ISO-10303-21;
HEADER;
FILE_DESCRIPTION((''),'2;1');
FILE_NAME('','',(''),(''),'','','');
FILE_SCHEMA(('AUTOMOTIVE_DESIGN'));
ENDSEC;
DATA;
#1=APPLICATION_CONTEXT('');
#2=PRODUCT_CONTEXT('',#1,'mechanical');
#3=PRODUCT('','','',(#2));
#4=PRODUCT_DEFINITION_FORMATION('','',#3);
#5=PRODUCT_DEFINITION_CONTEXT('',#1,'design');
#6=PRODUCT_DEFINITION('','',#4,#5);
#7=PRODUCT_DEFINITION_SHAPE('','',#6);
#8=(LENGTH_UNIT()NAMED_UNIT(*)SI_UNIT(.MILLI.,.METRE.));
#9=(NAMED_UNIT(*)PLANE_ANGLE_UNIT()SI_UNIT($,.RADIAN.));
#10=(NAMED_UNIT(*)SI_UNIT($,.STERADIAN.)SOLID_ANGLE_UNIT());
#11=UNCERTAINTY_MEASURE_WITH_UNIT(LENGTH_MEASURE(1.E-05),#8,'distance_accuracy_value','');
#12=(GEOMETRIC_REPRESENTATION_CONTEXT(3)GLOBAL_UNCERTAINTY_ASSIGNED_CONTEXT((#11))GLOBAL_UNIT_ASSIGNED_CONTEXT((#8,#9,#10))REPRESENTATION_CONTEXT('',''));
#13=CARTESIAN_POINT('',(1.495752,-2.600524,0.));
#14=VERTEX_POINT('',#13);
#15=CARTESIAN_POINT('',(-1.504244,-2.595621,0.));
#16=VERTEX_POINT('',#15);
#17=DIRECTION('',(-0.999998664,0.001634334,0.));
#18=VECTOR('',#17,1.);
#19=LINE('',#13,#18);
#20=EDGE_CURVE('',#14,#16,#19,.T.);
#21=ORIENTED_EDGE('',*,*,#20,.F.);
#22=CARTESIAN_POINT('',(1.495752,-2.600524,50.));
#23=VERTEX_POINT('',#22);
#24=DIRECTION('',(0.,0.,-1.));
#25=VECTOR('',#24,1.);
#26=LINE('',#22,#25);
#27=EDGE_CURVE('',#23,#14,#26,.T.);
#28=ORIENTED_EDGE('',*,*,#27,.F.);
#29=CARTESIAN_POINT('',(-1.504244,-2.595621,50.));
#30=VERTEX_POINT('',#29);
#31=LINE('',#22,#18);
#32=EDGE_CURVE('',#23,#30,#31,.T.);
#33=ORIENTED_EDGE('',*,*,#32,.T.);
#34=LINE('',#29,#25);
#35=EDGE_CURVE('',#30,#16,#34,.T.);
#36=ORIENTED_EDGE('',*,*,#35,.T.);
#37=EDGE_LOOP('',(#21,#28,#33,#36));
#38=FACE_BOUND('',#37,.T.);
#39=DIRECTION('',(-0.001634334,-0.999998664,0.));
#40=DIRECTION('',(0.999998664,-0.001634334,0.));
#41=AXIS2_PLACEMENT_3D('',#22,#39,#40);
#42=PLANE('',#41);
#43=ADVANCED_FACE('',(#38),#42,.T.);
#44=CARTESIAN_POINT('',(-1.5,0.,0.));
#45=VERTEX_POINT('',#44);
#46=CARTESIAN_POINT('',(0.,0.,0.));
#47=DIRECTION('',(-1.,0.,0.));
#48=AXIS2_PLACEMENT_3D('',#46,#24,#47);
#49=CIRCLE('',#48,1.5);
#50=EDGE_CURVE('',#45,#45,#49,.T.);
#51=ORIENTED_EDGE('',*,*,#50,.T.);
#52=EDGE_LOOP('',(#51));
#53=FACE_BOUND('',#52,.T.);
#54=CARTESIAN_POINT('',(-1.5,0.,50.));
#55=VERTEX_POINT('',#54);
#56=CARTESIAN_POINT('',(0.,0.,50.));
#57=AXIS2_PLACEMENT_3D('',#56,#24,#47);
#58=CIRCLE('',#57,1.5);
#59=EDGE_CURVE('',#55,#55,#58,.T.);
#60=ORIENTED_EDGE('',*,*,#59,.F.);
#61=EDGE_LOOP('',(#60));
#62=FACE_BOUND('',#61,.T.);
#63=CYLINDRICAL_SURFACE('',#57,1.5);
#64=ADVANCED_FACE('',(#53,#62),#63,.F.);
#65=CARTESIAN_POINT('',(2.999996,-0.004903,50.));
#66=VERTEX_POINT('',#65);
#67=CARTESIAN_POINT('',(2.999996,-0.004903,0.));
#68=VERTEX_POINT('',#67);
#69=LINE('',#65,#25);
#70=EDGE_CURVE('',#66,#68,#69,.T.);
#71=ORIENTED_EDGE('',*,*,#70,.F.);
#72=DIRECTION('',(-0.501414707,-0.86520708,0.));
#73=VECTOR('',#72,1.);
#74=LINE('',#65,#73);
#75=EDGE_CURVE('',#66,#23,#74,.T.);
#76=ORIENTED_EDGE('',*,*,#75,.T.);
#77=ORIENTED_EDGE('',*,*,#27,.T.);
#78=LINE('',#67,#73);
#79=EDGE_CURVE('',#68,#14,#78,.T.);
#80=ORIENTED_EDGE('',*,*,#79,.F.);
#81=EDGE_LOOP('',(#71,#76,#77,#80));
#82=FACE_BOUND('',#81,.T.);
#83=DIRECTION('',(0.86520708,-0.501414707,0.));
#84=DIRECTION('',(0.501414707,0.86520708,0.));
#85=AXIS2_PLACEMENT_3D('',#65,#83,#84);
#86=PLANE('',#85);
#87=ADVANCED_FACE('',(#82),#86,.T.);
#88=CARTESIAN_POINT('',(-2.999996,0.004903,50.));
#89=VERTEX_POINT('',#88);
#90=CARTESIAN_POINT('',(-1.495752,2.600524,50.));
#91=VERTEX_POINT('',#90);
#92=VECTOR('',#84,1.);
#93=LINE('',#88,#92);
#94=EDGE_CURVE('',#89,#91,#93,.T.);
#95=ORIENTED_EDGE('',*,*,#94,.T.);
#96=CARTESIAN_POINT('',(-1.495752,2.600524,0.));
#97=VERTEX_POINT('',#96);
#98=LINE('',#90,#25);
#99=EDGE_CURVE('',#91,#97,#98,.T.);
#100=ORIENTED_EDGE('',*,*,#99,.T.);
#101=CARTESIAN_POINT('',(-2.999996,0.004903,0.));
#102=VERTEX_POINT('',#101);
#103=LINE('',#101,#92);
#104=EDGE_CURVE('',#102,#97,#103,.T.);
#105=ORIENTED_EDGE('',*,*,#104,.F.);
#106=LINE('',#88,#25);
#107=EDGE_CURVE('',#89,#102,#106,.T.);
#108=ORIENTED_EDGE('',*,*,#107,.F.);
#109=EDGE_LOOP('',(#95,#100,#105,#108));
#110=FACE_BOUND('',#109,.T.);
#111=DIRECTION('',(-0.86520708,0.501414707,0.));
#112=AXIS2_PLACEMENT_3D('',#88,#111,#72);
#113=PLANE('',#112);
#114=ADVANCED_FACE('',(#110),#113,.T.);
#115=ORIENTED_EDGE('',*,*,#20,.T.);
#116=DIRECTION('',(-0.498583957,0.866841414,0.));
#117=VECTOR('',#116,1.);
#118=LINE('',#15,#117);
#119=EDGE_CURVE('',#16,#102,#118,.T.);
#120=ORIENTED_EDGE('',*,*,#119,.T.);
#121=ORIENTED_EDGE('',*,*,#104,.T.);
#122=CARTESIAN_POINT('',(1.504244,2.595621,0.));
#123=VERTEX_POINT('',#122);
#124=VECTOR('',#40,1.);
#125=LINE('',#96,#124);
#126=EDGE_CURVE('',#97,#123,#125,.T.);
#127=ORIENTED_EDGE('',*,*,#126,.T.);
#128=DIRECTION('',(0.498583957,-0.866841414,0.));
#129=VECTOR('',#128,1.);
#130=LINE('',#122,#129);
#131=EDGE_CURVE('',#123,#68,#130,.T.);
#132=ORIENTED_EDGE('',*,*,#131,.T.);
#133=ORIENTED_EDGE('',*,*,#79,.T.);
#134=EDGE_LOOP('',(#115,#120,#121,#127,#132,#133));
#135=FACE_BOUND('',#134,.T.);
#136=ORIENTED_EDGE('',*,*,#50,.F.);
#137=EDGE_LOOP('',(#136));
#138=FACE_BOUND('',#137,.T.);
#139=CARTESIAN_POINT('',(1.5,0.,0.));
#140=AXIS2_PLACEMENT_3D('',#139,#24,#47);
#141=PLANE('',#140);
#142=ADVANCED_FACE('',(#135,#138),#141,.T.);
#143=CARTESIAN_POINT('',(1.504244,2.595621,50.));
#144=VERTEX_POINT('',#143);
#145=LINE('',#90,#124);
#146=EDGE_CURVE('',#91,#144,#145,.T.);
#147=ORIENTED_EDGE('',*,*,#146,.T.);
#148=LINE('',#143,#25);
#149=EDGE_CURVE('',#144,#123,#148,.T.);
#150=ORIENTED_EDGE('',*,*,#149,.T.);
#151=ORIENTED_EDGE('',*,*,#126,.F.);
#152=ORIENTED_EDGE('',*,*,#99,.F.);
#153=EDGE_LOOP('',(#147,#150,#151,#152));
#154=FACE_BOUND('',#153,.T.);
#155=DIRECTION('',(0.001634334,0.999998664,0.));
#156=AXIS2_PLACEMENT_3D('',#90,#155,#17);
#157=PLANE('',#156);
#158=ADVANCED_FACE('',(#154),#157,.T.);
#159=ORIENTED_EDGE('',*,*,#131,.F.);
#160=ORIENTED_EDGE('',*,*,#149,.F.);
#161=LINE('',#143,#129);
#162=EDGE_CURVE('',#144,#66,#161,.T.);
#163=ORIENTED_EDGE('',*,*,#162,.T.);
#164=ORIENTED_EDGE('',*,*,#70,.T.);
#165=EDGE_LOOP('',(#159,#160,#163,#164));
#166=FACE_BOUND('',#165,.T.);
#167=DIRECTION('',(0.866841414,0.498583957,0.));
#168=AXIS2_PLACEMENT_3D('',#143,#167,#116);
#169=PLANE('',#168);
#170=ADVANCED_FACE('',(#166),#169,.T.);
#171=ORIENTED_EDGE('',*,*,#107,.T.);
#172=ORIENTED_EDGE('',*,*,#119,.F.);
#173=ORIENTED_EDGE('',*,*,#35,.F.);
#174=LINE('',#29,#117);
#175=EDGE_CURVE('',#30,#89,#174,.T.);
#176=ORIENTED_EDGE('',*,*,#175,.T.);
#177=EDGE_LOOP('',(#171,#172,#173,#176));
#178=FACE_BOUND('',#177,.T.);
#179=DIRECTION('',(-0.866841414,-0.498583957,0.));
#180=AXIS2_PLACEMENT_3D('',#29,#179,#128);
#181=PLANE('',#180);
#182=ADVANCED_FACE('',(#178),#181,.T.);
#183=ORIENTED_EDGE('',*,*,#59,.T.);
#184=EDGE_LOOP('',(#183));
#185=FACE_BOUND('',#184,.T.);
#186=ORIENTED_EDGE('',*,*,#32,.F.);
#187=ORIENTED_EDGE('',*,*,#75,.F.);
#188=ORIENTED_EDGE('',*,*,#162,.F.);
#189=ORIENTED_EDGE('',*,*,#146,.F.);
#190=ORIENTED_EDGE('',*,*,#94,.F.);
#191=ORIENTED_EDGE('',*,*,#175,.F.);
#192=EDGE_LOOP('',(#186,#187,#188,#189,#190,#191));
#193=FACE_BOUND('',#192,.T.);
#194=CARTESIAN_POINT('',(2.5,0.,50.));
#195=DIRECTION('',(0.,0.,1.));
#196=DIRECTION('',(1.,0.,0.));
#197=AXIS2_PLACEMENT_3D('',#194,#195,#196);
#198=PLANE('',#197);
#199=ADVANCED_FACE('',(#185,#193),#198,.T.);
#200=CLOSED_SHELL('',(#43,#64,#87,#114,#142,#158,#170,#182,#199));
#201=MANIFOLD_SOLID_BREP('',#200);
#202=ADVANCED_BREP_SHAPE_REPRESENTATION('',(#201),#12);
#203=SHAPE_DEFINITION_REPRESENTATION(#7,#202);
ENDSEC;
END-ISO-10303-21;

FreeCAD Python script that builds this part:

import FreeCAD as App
import Part
import Sketcher
from FreeCAD import Vector


def add_polygon(sketch, points):
    """Adds a closed chain of lines whose ends are joined by coincident constraints."""
    first, n = sketch.GeometryCount, len(points)
    for a, b in zip(points, points[1:] + points[:1]):
        sketch.addGeometry(Part.LineSegment(App.Vector(*a, 0), App.Vector(*b, 0)), False)
    for i in range(n):
        sketch.addConstraint(Sketcher.Constraint("Coincident", first + i, 2, first + (i + 1) % n, 1))

doc = App.newDocument("Part")
body = doc.addObject("PartDesign::Body", "Body")

sketch1 = doc.addObject("Sketcher::SketchObject", "Sketch")
body.addObject(sketch1)
sketch1.AttachmentSupport = (doc.XZ_Plane, [""])
sketch1.MapMode = "FlatFace"
add_polygon(sketch1, [(1.5, 50), (1.5, 0), (2.5, 0), (2.5, 50)])
sketch1.addConstraint(Sketcher.Constraint("Vertical", 0))
sketch1.addConstraint(Sketcher.Constraint("Horizontal", 1))
sketch1.addConstraint(Sketcher.Constraint("Vertical", 2))
sketch1.addConstraint(Sketcher.Constraint("Horizontal", 3))
sketch1.addConstraint(Sketcher.Constraint("PointOnObject", 0, 2, -1))
sketch1.addConstraint(Sketcher.Constraint("DistanceX", 1, 1, 1, 2, 1.0))
sketch1.addConstraint(Sketcher.Constraint("DistanceY", 0, 2, 0, 1, 50.0))
sketch1.addConstraint(Sketcher.Constraint("DistanceX", -1, 1, 0, 2, 1.5))
revolution = doc.addObject("PartDesign::Revolution", "Revolution")
body.addObject(revolution)
revolution.Profile = sketch1
revolution.ReferenceAxis = (sketch1, ["V_Axis"])
revolution.Angle = 360

sketch2 = doc.addObject("Sketcher::SketchObject", "Sketch001")
body.addObject(sketch2)
sketch2.AttachmentSupport = (doc.XY_Plane, [""])
sketch2.MapMode = "FlatFace"
add_polygon(sketch2, [(1.5, 2.6), (3, 0), (1.5, -2.6), (-1.5, -2.6), (-3, 0), (-1.5, 2.6)])
sketch2.addGeometry(Part.Circle(Vector(0, 0, 0), Vector(0, 0, 1), 1.5), False)
sketch2.addConstraint(Sketcher.Constraint("Coincident", 6, 3, -1, 1))
sketch2.addConstraint(Sketcher.Constraint("Symmetric", 0, 2, 3, 2, -1, 1))
sketch2.addConstraint(Sketcher.Constraint("Symmetric", 1, 2, 4, 2, -1, 1))
sketch2.addConstraint(Sketcher.Constraint("Symmetric", 2, 2, 5, 2, -1, 1))
sketch2.addConstraint(Sketcher.Constraint("Equal", 0, 1))
sketch2.addConstraint(Sketcher.Constraint("Equal", 1, 2))
sketch2.addConstraint(Sketcher.Constraint("Diameter", 6, 3.0))
sketch2.addConstraint(Sketcher.Constraint("Distance", 0, 3.0))
sketch2.addConstraint(Sketcher.Constraint("DistanceX", -1, 1, 1, 2, 1.495752))
sketch2.addConstraint(Sketcher.Constraint("DistanceY", 2, 2, -1, 1, 2.595621))
sketch2.addConstraint(Sketcher.Constraint("DistanceY", 1, 2, 0, 2, 2.595621))
pad1 = doc.addObject("PartDesign::Pad", "Pad")
body.addObject(pad1)
pad1.Profile = sketch2
pad1.Length = 50

doc.recompute()
